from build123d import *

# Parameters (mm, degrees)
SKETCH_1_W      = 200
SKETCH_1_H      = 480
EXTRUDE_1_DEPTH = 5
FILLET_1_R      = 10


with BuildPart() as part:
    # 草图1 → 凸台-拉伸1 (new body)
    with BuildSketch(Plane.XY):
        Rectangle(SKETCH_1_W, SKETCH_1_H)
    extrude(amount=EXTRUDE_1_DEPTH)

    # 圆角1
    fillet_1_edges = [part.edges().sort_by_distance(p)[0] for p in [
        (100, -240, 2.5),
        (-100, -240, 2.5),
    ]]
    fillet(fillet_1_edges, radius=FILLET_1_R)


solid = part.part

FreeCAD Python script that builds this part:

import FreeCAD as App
import Part
import Sketcher

V = App.Vector


def edges_at(feature, points):
    """Names of the edges that pass closest to the given points."""
    edges = feature.Shape.Edges
    near = lambda p: min(range(len(edges)), key=lambda i: edges[i].distToShape(Part.Vertex(*p))[0])
    return sorted({f"Edge{near(p) + 1}" for p in points})

doc = App.newDocument("Part")
body = doc.addObject("PartDesign::Body", "Body")

# Sketch on XY plane
sketch1 = doc.addObject("Sketcher::SketchObject", "Sketch")
body.addObject(sketch1)
sketch1.AttachmentSupport = (doc.XY_Plane, [""])
sketch1.MapMode = "FlatFace"
sketch1.addGeometry([
    Part.LineSegment(V(-100, 240, 0), V(-100, -240, 0)),
    Part.LineSegment(V(-100, -240, 0), V(100, -240, 0)),
    Part.LineSegment(V(100, -240, 0), V(100, 240, 0)),
    Part.LineSegment(V(100, 240, 0), V(-100, 240, 0)),
], False)
sketch1.addConstraint([
    Sketcher.Constraint("Coincident", 0, 2, 1, 1),
    Sketcher.Constraint("Coincident", 1, 2, 2, 1),
    Sketcher.Constraint("Coincident", 2, 2, 3, 1),
    Sketcher.Constraint("Coincident", 3, 2, 0, 1),
    Sketcher.Constraint("Vertical", 0),
    Sketcher.Constraint("Horizontal", 1),
    Sketcher.Constraint("Vertical", 2),
    Sketcher.Constraint("Horizontal", 3),
    Sketcher.Constraint("Symmetric", 0, 2, 2, 2, -1, 1),
    Sketcher.Constraint("DistanceX", 1, 1, 1, 2, 200.0),
    Sketcher.Constraint("DistanceY", 0, 2, 0, 1, 480.0),
])
pad1 = doc.addObject("PartDesign::Pad", "Pad")
body.addObject(pad1)
pad1.Profile = sketch1
pad1.Length = 5
doc.recompute()

fillet = doc.addObject("PartDesign::Fillet", "Fillet")
body.addObject(fillet)
fillet.Base = (pad1, edges_at(pad1, [(100, -240, 2.5), (-100, -240, 2.5)]))
fillet.Radius = 10

doc.recompute()
